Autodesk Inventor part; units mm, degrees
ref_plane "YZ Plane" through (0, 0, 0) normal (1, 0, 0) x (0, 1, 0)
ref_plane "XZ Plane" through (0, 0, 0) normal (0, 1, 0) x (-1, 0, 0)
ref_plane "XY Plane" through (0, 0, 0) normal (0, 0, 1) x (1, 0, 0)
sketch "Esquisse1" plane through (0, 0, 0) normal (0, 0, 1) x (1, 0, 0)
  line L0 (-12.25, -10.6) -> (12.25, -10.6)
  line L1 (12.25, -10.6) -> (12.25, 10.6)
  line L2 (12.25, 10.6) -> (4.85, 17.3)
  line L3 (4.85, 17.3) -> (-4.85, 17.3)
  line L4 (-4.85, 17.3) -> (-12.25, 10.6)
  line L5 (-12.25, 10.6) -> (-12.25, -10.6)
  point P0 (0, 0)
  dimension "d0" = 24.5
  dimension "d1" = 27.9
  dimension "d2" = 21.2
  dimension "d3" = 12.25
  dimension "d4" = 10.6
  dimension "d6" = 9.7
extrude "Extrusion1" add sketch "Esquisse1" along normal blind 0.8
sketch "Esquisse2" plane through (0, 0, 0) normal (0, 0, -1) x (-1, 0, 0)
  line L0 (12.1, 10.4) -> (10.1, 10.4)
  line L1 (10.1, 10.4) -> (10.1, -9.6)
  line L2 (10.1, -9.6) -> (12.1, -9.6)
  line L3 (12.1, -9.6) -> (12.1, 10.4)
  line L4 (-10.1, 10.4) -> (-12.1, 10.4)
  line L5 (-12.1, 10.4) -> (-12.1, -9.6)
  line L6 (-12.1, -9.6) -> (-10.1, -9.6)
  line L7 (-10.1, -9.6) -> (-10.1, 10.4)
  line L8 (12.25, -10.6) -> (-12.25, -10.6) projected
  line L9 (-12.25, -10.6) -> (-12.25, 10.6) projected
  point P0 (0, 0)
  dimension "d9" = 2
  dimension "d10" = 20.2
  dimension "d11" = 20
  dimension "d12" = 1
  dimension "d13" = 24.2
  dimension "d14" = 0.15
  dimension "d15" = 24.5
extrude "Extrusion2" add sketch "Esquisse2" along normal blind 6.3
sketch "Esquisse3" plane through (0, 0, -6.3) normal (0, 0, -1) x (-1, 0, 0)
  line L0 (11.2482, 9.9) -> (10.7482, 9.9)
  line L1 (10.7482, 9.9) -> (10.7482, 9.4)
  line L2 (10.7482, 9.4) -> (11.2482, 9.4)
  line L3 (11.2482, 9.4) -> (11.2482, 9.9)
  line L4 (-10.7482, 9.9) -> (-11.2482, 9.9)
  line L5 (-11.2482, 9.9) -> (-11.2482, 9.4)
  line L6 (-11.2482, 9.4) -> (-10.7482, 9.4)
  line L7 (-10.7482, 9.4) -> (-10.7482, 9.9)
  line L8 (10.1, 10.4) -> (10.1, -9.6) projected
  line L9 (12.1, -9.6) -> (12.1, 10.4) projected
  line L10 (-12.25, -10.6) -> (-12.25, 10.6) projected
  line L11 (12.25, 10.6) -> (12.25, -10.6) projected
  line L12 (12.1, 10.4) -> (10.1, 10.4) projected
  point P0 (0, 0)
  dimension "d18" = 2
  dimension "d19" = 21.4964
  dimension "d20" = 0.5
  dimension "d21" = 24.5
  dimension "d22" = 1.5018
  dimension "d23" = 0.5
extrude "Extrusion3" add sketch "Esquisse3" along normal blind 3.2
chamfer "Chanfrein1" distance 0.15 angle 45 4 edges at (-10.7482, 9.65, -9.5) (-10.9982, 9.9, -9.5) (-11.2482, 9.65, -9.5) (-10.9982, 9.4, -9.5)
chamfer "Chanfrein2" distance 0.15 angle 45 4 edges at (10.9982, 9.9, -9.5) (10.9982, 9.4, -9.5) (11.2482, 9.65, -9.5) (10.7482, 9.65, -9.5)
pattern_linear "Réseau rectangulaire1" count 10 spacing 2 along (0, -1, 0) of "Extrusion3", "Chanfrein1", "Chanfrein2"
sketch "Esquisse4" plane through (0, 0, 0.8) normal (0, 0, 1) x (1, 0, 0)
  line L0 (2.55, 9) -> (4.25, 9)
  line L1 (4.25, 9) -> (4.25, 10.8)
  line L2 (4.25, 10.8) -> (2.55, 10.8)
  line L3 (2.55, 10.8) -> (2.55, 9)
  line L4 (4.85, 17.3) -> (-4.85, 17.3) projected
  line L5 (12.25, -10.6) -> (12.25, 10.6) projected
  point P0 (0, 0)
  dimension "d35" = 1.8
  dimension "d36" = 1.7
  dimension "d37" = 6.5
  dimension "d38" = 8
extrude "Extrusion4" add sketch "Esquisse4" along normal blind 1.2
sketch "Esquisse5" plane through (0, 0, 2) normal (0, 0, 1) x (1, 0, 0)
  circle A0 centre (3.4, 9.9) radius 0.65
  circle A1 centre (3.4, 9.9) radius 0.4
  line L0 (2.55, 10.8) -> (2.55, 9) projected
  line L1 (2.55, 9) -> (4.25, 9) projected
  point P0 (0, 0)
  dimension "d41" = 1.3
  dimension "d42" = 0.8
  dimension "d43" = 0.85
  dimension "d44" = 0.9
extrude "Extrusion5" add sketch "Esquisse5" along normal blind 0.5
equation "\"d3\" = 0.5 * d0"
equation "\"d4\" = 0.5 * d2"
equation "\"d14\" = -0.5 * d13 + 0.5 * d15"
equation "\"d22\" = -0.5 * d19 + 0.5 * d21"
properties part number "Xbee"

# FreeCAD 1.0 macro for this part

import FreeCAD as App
import Part
import Sketcher
from FreeCAD import Vector


def edges_at(feature, points):
    """Names of the edges that pass closest to the given points."""
    edges = feature.Shape.Edges
    near = lambda p: min(range(len(edges)), key=lambda i: edges[i].distToShape(Part.Vertex(*p))[0])
    return sorted({f"Edge{near(p) + 1}" for p in points})

doc = App.newDocument("Part")
body = doc.addObject("PartDesign::Body", "Body")

# Sketch on XY plane
sketch1 = body.newObject("Sketcher::SketchObject", "Sketch")
sketch1.AttachmentSupport = (doc.getObject("XY_Plane"), [""])
sketch1.MapMode = "FlatFace"
sketch1.addGeometry(Part.LineSegment(Vector(-12, 11, 0), Vector(-12, -11, 0)), False)
sketch1.addGeometry(Part.LineSegment(Vector(-12, -11, 0), Vector(12, -11, 0)), False)
sketch1.addGeometry(Part.LineSegment(Vector(12, -11, 0), Vector(12, 11, 0)), False)
sketch1.addGeometry(Part.LineSegment(Vector(12, 11, 0), Vector(5, 17, 0)), False)
sketch1.addGeometry(Part.LineSegment(Vector(5, 17, 0), Vector(-5, 17, 0)), False)
sketch1.addGeometry(Part.LineSegment(Vector(-5, 17, 0), Vector(-12, 11, 0)), False)
sketch1.addConstraint(Sketcher.Constraint("Coincident", 0, 2, 1, 1))
sketch1.addConstraint(Sketcher.Constraint("Coincident", 1, 2, 2, 1))
sketch1.addConstraint(Sketcher.Constraint("Coincident", 2, 2, 3, 1))
sketch1.addConstraint(Sketcher.Constraint("Coincident", 3, 2, 4, 1))
sketch1.addConstraint(Sketcher.Constraint("Coincident", 4, 2, 5, 1))
sketch1.addConstraint(Sketcher.Constraint("Coincident", 5, 2, 0, 1))
sketch1.addConstraint(Sketcher.Constraint("Vertical", 0))
sketch1.addConstraint(Sketcher.Constraint("Horizontal", 1))
sketch1.addConstraint(Sketcher.Constraint("Vertical", 2))
sketch1.addConstraint(Sketcher.Constraint("Horizontal", 4))
sketch1.addConstraint(Sketcher.Constraint("Symmetric", 0, 2, 2, 2, -1, 1))
sketch1.addConstraint(Sketcher.Constraint("Horizontal", 2, 2, 5, 2))
sketch1.addConstraint(Sketcher.Constraint("Equal", 3, 5))
sketch1.addConstraint(Sketcher.Constraint("DistanceX", 1, 1, 1, 2, 24.5))
sketch1.addConstraint(Sketcher.Constraint("DistanceX", 4, 2, 4, 1, 9.7))
sketch1.addConstraint(Sketcher.Constraint("DistanceY", 0, 2, 0, 1, 21.2))
sketch1.addConstraint(Sketcher.Constraint("DistanceY", 1, 2, 3, 2, 27.9))
pad1 = body.newObject("PartDesign::Pad", "Pad")
pad1.Profile = sketch1
pad1.Length = 0.8

# Sketch on XY plane
sketch2 = body.newObject("Sketcher::SketchObject", "Sketch001")
sketch2.AttachmentSupport = (doc.getObject("XY_Plane"), [""])
sketch2.MapMode = "FlatFace"
sketch2.addGeometry(Part.LineSegment(Vector(-12.1, -9.6, 0), Vector(-12.1, 10.4, 0)), False)
sketch2.addGeometry(Part.LineSegment(Vector(-12.1, 10.4, 0), Vector(-10.1, 10.4, 0)), False)
sketch2.addGeometry(Part.LineSegment(Vector(-10.1, 10.4, 0), Vector(-10.1, -9.6, 0)), False)
sketch2.addGeometry(Part.LineSegment(Vector(-10.1, -9.6, 0), Vector(-12.1, -9.6, 0)), False)
sketch2.addGeometry(Part.LineSegment(Vector(10.1, -9.6, 0), Vector(10.1, 10.4, 0)), False)
sketch2.addGeometry(Part.LineSegment(Vector(10.1, 10.4, 0), Vector(12.1, 10.4, 0)), False)
sketch2.addGeometry(Part.LineSegment(Vector(12.1, 10.4, 0), Vector(12.1, -9.6, 0)), False)
sketch2.addGeometry(Part.LineSegment(Vector(12.1, -9.6, 0), Vector(10.1, -9.6, 0)), False)
sketch2.addConstraint(Sketcher.Constraint("Coincident", 0, 2, 1, 1))
sketch2.addConstraint(Sketcher.Constraint("Coincident", 1, 2, 2, 1))
sketch2.addConstraint(Sketcher.Constraint("Coincident", 2, 2, 3, 1))
sketch2.addConstraint(Sketcher.Constraint("Coincident", 3, 2, 0, 1))
sketch2.addConstraint(Sketcher.Constraint("Coincident", 4, 2, 5, 1))
sketch2.addConstraint(Sketcher.Constraint("Coincident", 5, 2, 6, 1))
sketch2.addConstraint(Sketcher.Constraint("Coincident", 6, 2, 7, 1))
sketch2.addConstraint(Sketcher.Constraint("Coincident", 7, 2, 4, 1))
sketch2.addConstraint(Sketcher.Constraint("Vertical", 0))
sketch2.addConstraint(Sketcher.Constraint("Horizontal", 1))
sketch2.addConstraint(Sketcher.Constraint("Vertical", 2))
sketch2.addConstraint(Sketcher.Constraint("Horizontal", 3))
sketch2.addConstraint(Sketcher.Constraint("Vertical", 4))
sketch2.addConstraint(Sketcher.Constraint("Horizontal", 5))
sketch2.addConstraint(Sketcher.Constraint("Vertical", 6))
sketch2.addConstraint(Sketcher.Constraint("Horizontal", 7))
sketch2.addConstraint(Sketcher.Constraint("Symmetric", 1, 2, 4, 2, -2))
sketch2.addConstraint(Sketcher.Constraint("Symmetric", 3, 2, 6, 2, -2))
sketch2.addConstraint(Sketcher.Constraint("DistanceX", 1, 1, 1, 2, 2.0))
sketch2.addConstraint(Sketcher.Constraint("DistanceY", 0, 1, 0, 2, 20.0))
sketch2.addConstraint(Sketcher.Constraint("DistanceX", 1, 2, 4, 2, 20.2))
sketch2.addConstraint(Sketcher.Constraint("DistanceY", -1, 1, 0, 2, 10.4))
pad2 = body.newObject("PartDesign::Pad", "Pad001")
pad2.Profile = sketch2
pad2.Length = 6.3
pad2.Reversed = True

# Sketch on XY plane
sketch3 = body.newObject("Sketcher::SketchObject", "Sketch002")
sketch3.AttachmentSupport = (doc.getObject("XY_Plane"), [""])
sketch3.MapMode = "FlatFace"
sketch3.AttachmentOffset = App.Placement(Vector(0, 0, -6.3), App.Rotation())
sketch3.addGeometry(Part.LineSegment(Vector(-11.2, 9.4, 0), Vector(-11.2, 9.9, 0)), False)
sketch3.addGeometry(Part.LineSegment(Vector(-11.2, 9.9, 0), Vector(-10.7, 9.9, 0)), False)
sketch3.addGeometry(Part.LineSegment(Vector(-10.7, 9.9, 0), Vector(-10.7, 9.4, 0)), False)
sketch3.addGeometry(Part.LineSegment(Vector(-10.7, 9.4, 0), Vector(-11.2, 9.4, 0)), False)
sketch3.addGeometry(Part.LineSegment(Vector(10.7, 9.4, 0), Vector(10.7, 9.9, 0)), False)
sketch3.addGeometry(Part.LineSegment(Vector(10.7, 9.9, 0), Vector(11.2, 9.9, 0)), False)
sketch3.addGeometry(Part.LineSegment(Vector(11.2, 9.9, 0), Vector(11.2, 9.4, 0)), False)
sketch3.addGeometry(Part.LineSegment(Vector(11.2, 9.4, 0), Vector(10.7, 9.4, 0)), False)
sketch3.addConstraint(Sketcher.Constraint("Coincident", 0, 2, 1, 1))
sketch3.addConstraint(Sketcher.Constraint("Coincident", 1, 2, 2, 1))
sketch3.addConstraint(Sketcher.Constraint("Coincident", 2, 2, 3, 1))
sketch3.addConstraint(Sketcher.Constraint("Coincident", 3, 2, 0, 1))
sketch3.addConstraint(Sketcher.Constraint("Coincident", 4, 2, 5, 1))
sketch3.addConstraint(Sketcher.Constraint("Coincident", 5, 2, 6, 1))
sketch3.addConstraint(Sketcher.Constraint("Coincident", 6, 2, 7, 1))
sketch3.addConstraint(Sketcher.Constraint("Coincident", 7, 2, 4, 1))
sketch3.addConstraint(Sketcher.Constraint("Vertical", 0))
sketch3.addConstraint(Sketcher.Constraint("Horizontal", 1))
sketch3.addConstraint(Sketcher.Constraint("Vertical", 2))
sketch3.addConstraint(Sketcher.Constraint("Horizontal", 3))
sketch3.addConstraint(Sketcher.Constraint("Vertical", 4))
sketch3.addConstraint(Sketcher.Constraint("Horizontal", 5))
sketch3.addConstraint(Sketcher.Constraint("Vertical", 6))
sketch3.addConstraint(Sketcher.Constraint("Horizontal", 7))
sketch3.addConstraint(Sketcher.Constraint("Symmetric", 1, 2, 4, 2, -2))
sketch3.addConstraint(Sketcher.Constraint("Symmetric", 3, 2, 6, 2, -2))
sketch3.addConstraint(Sketcher.Constraint("Equal", 7, 0))
sketch3.addConstraint(Sketcher.Constraint("DistanceX", 1, 1, 1, 2, 0.5))
sketch3.addConstraint(Sketcher.Constraint("DistanceY", -1, 1, 0, 2, 9.9))
sketch3.addConstraint(Sketcher.Constraint("DistanceX", 1, 2, 4, 2, 21.4964))
pad3 = body.newObject("PartDesign::Pad", "Pad002")
pad3.Profile = sketch3
pad3.Length = 3.2
pad3.Reversed = True
doc.recompute()

chamfer = body.newObject("PartDesign::Chamfer", "Chamfer")
chamfer.Base = (pad3, edges_at(pad3, [
    (-10.748, 9.65, -9.5),
    (-10.998, 9.9, -9.5),
    (-11.248, 9.65, -9.5),
    (-10.998, 9.4, -9.5),
]))
chamfer.Size = 0.15
doc.recompute()

chamfer2 = body.newObject("PartDesign::Chamfer", "Chamfer001")
chamfer2.Base = (chamfer, edges_at(chamfer, [
    (10.998, 9.9, -9.5),
    (10.998, 9.4, -9.5),
    (11.248, 9.65, -9.5),
    (10.748, 9.65, -9.5),
]))
chamfer2.Size = 0.15
doc.recompute()

linearpattern = body.newObject("PartDesign::LinearPattern", "LinearPattern")
linearpattern.Originals = [pad3, chamfer, chamfer2]
linearpattern.Direction = (doc.getObject("Y_Axis"), [""])
linearpattern.Mode = "offset"
linearpattern.Offset = 2
linearpattern.Occurrences = 10
linearpattern.Reversed = True
body.Tip = linearpattern

# Sketch on XY plane
sketch4 = body.newObject("Sketcher::SketchObject", "Sketch003")
sketch4.AttachmentSupport = (doc.getObject("XY_Plane"), [""])
sketch4.MapMode = "FlatFace"
sketch4.AttachmentOffset = App.Placement(Vector(0, 0, 0.8), App.Rotation())
sketch4.addGeometry(Part.LineSegment(Vector(2.5, 10.8, 0), Vector(2.5, 9, 0)), False)
sketch4.addGeometry(Part.LineSegment(Vector(2.5, 9, 0), Vector(4.2, 9, 0)), False)
sketch4.addGeometry(Part.LineSegment(Vector(4.2, 9, 0), Vector(4.2, 10.8, 0)), False)
sketch4.addGeometry(Part.LineSegment(Vector(4.2, 10.8, 0), Vector(2.5, 10.8, 0)), False)
sketch4.addConstraint(Sketcher.Constraint("Coincident", 0, 2, 1, 1))
sketch4.addConstraint(Sketcher.Constraint("Coincident", 1, 2, 2, 1))
sketch4.addConstraint(Sketcher.Constraint("Coincident", 2, 2, 3, 1))
sketch4.addConstraint(Sketcher.Constraint("Coincident", 3, 2, 0, 1))
sketch4.addConstraint(Sketcher.Constraint("Vertical", 0))
sketch4.addConstraint(Sketcher.Constraint("Horizontal", 1))
sketch4.addConstraint(Sketcher.Constraint("Vertical", 2))
sketch4.addConstraint(Sketcher.Constraint("Horizontal", 3))
sketch4.addConstraint(Sketcher.Constraint("DistanceX", 1, 1, 1, 2, 1.7))
sketch4.addConstraint(Sketcher.Constraint("DistanceY", 0, 2, 0, 1, 1.8))
sketch4.addConstraint(Sketcher.Constraint("DistanceY", -1, 1, 0, 2, 9.0))
sketch4.addConstraint(Sketcher.Constraint("DistanceX", -1, 1, 0, 2, 2.55))
pad4 = body.newObject("PartDesign::Pad", "Pad003")
pad4.Profile = sketch4
pad4.Length = 1.2

# Sketch on XY plane
sketch5 = body.newObject("Sketcher::SketchObject", "Sketch004")
sketch5.AttachmentSupport = (doc.getObject("XY_Plane"), [""])
sketch5.MapMode = "FlatFace"
sketch5.AttachmentOffset = App.Placement(Vector(0, 0, 2), App.Rotation())
sketch5.addGeometry(Part.Circle(Vector(3.4, 9.9, 0), Vector(0, 0, 1), 0.65), False)
sketch5.addGeometry(Part.Circle(Vector(3.4, 9.9, 0), Vector(0, 0, 1), 0.4), False)
sketch5.addConstraint(Sketcher.Constraint("Coincident", 1, 3, 0, 3))
sketch5.addConstraint(Sketcher.Constraint("Diameter", 0, 1.3))
sketch5.addConstraint(Sketcher.Constraint("Diameter", 1, 0.8))
sketch5.addConstraint(Sketcher.Constraint("DistanceX", -1, 1, 0, 3, 3.4))
sketch5.addConstraint(Sketcher.Constraint("DistanceY", -1, 1, 0, 3, 9.9))
pad5 = body.newObject("PartDesign::Pad", "Pad004")
pad5.Profile = sketch5
pad5.Length = 0.5

doc.recompute()
